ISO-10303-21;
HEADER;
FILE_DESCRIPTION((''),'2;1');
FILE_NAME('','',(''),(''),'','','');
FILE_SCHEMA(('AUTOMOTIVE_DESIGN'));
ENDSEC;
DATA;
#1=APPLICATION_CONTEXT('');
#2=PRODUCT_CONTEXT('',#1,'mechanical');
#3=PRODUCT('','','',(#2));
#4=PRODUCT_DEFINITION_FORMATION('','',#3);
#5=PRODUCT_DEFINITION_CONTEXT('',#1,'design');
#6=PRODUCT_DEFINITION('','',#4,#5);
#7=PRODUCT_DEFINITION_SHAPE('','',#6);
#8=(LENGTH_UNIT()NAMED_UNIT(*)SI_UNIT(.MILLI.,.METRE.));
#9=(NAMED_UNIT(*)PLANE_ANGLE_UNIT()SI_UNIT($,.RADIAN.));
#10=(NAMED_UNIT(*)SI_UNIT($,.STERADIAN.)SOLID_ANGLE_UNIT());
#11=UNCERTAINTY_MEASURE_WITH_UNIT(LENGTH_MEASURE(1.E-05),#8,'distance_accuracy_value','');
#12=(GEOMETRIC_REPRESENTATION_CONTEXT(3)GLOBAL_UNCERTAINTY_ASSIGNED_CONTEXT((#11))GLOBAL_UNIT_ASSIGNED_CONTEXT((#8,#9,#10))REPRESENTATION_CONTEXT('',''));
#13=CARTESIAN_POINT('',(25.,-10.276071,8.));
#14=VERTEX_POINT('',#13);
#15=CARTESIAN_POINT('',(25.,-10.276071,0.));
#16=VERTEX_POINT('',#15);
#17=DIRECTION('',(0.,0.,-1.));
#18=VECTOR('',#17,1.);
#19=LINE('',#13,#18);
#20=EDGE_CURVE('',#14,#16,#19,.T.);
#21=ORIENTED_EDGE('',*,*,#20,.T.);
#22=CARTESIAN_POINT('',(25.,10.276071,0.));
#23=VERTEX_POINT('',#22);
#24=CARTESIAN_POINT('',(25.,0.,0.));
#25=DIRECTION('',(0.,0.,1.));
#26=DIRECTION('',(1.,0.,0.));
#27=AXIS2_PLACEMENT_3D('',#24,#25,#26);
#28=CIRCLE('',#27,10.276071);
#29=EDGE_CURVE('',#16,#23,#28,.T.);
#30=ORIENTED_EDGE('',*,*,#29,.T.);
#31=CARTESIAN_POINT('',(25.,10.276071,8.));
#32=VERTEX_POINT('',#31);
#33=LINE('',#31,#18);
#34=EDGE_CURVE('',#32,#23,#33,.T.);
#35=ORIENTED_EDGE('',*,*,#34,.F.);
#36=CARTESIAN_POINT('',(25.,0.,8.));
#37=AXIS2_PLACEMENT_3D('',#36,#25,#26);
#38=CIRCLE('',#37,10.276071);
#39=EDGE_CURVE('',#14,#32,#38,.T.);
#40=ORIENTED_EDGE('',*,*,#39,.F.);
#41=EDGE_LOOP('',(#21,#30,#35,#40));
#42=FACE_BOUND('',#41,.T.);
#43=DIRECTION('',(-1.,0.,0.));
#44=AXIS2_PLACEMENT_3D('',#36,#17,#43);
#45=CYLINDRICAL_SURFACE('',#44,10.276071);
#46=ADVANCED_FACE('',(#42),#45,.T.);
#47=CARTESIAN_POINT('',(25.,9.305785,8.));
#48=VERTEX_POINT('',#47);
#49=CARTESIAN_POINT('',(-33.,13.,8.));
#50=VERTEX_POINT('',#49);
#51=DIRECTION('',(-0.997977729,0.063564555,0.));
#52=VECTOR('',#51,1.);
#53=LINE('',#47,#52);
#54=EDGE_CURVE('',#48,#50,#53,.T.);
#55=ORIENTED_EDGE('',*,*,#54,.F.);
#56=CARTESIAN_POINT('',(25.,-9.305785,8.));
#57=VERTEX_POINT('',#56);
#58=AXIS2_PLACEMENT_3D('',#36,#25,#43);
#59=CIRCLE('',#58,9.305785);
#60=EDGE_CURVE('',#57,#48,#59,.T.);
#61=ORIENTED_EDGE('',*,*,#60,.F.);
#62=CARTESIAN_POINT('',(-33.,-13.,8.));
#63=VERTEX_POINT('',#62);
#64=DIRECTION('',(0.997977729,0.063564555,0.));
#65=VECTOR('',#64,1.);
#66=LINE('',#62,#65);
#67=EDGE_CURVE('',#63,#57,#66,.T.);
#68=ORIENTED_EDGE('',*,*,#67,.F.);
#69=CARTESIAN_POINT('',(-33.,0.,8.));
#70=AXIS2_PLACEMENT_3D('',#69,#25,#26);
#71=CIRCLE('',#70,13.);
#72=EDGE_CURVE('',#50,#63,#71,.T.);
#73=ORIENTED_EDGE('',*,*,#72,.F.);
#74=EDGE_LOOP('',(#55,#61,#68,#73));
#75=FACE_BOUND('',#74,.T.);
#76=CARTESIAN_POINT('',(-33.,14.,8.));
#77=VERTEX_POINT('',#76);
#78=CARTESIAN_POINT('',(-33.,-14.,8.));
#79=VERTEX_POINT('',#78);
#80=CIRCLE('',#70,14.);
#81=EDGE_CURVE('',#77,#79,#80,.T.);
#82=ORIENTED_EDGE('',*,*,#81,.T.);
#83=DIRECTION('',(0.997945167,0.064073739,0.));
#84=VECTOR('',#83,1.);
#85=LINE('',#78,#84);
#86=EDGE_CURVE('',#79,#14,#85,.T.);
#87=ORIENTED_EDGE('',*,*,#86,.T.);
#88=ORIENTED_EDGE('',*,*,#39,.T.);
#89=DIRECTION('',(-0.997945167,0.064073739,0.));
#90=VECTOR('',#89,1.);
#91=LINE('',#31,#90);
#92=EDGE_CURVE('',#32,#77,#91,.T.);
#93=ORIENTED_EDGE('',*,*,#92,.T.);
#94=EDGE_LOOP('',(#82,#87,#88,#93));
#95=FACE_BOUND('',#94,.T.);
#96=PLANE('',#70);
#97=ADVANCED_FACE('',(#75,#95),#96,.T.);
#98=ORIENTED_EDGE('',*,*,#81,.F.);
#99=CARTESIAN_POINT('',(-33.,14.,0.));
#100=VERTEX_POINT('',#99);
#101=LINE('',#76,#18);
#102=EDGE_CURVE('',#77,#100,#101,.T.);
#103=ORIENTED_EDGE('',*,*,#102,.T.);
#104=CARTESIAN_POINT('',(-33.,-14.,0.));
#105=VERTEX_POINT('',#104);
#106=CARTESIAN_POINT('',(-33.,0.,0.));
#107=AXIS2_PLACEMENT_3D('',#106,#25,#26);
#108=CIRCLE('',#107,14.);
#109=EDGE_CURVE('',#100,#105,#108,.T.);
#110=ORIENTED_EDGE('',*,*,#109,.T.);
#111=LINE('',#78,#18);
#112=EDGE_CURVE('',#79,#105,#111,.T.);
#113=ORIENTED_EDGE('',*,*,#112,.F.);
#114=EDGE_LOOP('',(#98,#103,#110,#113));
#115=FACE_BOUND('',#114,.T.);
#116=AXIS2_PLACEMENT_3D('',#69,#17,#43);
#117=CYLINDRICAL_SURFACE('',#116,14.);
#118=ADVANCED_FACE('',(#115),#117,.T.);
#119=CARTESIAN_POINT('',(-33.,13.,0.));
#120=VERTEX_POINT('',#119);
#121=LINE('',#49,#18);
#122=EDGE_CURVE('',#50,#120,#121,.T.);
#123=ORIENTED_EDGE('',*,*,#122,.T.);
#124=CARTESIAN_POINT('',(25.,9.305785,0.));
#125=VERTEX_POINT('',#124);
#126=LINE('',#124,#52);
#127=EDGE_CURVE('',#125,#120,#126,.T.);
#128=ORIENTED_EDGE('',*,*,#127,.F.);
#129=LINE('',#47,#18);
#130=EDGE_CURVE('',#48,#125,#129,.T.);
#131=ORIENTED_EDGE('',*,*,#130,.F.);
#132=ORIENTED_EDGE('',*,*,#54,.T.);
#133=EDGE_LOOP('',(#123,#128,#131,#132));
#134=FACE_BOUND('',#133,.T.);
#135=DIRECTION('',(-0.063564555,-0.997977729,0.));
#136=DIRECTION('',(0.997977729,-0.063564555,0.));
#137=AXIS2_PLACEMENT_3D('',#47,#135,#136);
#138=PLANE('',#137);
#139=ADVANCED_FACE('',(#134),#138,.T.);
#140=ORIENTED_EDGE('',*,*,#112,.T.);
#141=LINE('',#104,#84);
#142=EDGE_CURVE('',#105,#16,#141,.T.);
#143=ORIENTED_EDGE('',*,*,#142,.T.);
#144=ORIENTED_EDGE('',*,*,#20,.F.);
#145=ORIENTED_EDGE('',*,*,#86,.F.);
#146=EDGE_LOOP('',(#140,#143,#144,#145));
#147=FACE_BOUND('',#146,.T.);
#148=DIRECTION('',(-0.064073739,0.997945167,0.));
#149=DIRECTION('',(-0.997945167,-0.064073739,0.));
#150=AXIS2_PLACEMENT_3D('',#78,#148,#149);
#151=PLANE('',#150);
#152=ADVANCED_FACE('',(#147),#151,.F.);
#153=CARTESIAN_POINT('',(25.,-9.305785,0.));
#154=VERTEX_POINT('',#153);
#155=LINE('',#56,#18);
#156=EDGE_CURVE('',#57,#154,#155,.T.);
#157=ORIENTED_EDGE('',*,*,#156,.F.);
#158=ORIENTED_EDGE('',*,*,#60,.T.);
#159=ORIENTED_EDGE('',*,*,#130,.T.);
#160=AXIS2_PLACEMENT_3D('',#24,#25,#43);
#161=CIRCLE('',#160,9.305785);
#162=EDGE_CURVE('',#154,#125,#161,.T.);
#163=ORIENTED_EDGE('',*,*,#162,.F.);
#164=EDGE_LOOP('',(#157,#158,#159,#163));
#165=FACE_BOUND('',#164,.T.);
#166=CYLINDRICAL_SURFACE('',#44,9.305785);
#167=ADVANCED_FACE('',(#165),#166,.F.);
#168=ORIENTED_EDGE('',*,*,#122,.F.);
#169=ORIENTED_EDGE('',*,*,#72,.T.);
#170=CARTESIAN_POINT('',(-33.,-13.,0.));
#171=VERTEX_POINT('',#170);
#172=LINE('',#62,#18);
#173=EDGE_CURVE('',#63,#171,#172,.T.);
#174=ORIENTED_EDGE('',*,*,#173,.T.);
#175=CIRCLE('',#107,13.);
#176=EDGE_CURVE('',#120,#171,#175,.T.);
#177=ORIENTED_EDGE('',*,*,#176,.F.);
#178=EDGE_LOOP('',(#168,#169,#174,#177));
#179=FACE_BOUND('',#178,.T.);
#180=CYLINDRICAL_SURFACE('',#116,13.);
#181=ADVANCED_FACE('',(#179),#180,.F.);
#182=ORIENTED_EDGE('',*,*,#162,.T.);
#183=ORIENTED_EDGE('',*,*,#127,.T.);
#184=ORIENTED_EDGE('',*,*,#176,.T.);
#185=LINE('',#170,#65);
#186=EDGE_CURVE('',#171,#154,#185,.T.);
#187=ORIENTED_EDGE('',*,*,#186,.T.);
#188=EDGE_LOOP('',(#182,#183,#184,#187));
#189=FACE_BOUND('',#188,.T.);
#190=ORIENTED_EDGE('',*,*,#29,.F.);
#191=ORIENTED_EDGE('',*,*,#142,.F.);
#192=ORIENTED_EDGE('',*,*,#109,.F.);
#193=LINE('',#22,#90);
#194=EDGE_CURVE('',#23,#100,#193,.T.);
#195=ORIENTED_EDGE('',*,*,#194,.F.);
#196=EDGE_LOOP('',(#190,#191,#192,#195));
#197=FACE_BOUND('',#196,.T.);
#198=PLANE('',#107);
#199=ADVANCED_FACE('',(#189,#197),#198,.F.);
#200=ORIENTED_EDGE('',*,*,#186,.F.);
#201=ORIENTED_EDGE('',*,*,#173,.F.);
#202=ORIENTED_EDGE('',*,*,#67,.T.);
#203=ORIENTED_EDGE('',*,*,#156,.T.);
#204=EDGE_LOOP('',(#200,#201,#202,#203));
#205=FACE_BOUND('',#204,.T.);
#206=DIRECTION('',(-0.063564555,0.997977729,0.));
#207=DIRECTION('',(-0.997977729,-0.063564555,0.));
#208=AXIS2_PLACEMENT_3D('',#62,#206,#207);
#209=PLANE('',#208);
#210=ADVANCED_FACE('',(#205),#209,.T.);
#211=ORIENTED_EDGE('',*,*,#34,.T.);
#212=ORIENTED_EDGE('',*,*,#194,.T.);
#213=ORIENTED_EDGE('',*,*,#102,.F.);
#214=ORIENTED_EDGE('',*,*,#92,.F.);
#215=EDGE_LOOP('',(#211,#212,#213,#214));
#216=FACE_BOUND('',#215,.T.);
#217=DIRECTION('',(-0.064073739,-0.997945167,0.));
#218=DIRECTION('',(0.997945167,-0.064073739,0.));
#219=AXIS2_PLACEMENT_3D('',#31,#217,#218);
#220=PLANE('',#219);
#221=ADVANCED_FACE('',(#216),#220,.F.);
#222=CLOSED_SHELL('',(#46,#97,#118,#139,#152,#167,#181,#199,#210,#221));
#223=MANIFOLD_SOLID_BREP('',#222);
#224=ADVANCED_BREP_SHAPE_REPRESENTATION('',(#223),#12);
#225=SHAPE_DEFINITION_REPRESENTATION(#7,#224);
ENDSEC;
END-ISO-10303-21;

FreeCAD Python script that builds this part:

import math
import FreeCAD as App
import Part
import Sketcher

V = App.Vector

doc = App.newDocument("Part")
params = doc.addObject("Spreadsheet::Sheet", "Params")
for row, (alias, value) in enumerate([
    ("sketch1_radius", "14 mm"),
    ("sketch1_radius2", "13 mm"),
    ("pad1_length", "8 mm"),
], start=1):
    params.set(f"A{row}", alias)
    params.set(f"B{row}", "=" + value)
    params.setAlias(f"B{row}", alias)

body = doc.addObject("PartDesign::Body", "Body")

sketch1 = body.newObject("Sketcher::SketchObject", "Sketch")
sketch1.AttachmentSupport = (doc.getObject("XY_Plane"), [""])
sketch1.MapMode = "FlatFace"
sketch1.addGeometry([
    Part.LineSegment(V(-33, -14, 0), V(25, -10.276071, 0)),
    Part.ArcOfCircle(Part.Circle(V(25, 0, 0), V(0, 0, 1), 10.276071), math.radians(-90), math.radians(90)),
    Part.LineSegment(V(25, 10.276071, 0), V(-33, 14, 0)),
    Part.ArcOfCircle(Part.Circle(V(-33, 0, 0), V(0, 0, 1), 14), math.radians(90), math.radians(270)),
    Part.LineSegment(V(25, -9.305785, 0), V(-33, -13, 0)),
    Part.ArcOfCircle(Part.Circle(V(-33, 0, 0), V(0, 0, 1), 13), math.radians(90), math.radians(270)),
    Part.LineSegment(V(-33, 13, 0), V(25, 9.305785, 0)),
    Part.ArcOfCircle(Part.Circle(V(25, 0, 0), V(0, 0, 1), 9.305785), math.radians(-90), math.radians(90)),
], False)
sketch1.addConstraint([
    Sketcher.Constraint("Coincident", 0, 2, 1, 1),
    Sketcher.Constraint("Coincident", 1, 2, 2, 1),
    Sketcher.Constraint("Coincident", 2, 2, 3, 1),
    Sketcher.Constraint("Coincident", 3, 2, 0, 1),
    Sketcher.Constraint("Coincident", 4, 2, 5, 2),
    Sketcher.Constraint("Coincident", 5, 1, 6, 1),
    Sketcher.Constraint("Coincident", 6, 2, 7, 2),
    Sketcher.Constraint("Coincident", 7, 1, 4, 1),
    Sketcher.Constraint("Coincident", 5, 3, 3, 3),
    Sketcher.Constraint("Coincident", 7, 3, 1, 3),
    Sketcher.Constraint("Symmetric", 0, 2, 1, 2, -1),
    Sketcher.Constraint("Symmetric", 2, 2, 3, 2, -1),
    Sketcher.Constraint("Vertical", 7, 3, 0, 2),
    Sketcher.Constraint("Vertical", 5, 3, 2, 2),
    Sketcher.Constraint("Vertical", 3, 2, 4, 2),
    Sketcher.Constraint("Vertical", 4, 2, 5, 1),
    Sketcher.Constraint("Vertical", 1, 2, 6, 2),
    Sketcher.Constraint("Vertical", 6, 2, 7, 1),
    Sketcher.Constraint("Radius", 3, 14.0),
    Sketcher.Constraint("Radius", 5, 13.0),
    Sketcher.Constraint("DistanceX", -1, 1, 1, 3, 25.0),
    Sketcher.Constraint("DistanceX", 3, 3, -1, 1, 33.0),
    Sketcher.Constraint("Radius", 1, 10.276071),
    Sketcher.Constraint("Radius", 7, 9.305785),
])
sketch1.setExpression("Constraints[18]", "Params.sketch1_radius")
sketch1.setExpression("Constraints[19]", "Params.sketch1_radius2")
pad1 = body.newObject("PartDesign::Pad", "Pad")
pad1.Profile = sketch1
pad1.setExpression("Length", "Params.pad1_length")

doc.recompute()
